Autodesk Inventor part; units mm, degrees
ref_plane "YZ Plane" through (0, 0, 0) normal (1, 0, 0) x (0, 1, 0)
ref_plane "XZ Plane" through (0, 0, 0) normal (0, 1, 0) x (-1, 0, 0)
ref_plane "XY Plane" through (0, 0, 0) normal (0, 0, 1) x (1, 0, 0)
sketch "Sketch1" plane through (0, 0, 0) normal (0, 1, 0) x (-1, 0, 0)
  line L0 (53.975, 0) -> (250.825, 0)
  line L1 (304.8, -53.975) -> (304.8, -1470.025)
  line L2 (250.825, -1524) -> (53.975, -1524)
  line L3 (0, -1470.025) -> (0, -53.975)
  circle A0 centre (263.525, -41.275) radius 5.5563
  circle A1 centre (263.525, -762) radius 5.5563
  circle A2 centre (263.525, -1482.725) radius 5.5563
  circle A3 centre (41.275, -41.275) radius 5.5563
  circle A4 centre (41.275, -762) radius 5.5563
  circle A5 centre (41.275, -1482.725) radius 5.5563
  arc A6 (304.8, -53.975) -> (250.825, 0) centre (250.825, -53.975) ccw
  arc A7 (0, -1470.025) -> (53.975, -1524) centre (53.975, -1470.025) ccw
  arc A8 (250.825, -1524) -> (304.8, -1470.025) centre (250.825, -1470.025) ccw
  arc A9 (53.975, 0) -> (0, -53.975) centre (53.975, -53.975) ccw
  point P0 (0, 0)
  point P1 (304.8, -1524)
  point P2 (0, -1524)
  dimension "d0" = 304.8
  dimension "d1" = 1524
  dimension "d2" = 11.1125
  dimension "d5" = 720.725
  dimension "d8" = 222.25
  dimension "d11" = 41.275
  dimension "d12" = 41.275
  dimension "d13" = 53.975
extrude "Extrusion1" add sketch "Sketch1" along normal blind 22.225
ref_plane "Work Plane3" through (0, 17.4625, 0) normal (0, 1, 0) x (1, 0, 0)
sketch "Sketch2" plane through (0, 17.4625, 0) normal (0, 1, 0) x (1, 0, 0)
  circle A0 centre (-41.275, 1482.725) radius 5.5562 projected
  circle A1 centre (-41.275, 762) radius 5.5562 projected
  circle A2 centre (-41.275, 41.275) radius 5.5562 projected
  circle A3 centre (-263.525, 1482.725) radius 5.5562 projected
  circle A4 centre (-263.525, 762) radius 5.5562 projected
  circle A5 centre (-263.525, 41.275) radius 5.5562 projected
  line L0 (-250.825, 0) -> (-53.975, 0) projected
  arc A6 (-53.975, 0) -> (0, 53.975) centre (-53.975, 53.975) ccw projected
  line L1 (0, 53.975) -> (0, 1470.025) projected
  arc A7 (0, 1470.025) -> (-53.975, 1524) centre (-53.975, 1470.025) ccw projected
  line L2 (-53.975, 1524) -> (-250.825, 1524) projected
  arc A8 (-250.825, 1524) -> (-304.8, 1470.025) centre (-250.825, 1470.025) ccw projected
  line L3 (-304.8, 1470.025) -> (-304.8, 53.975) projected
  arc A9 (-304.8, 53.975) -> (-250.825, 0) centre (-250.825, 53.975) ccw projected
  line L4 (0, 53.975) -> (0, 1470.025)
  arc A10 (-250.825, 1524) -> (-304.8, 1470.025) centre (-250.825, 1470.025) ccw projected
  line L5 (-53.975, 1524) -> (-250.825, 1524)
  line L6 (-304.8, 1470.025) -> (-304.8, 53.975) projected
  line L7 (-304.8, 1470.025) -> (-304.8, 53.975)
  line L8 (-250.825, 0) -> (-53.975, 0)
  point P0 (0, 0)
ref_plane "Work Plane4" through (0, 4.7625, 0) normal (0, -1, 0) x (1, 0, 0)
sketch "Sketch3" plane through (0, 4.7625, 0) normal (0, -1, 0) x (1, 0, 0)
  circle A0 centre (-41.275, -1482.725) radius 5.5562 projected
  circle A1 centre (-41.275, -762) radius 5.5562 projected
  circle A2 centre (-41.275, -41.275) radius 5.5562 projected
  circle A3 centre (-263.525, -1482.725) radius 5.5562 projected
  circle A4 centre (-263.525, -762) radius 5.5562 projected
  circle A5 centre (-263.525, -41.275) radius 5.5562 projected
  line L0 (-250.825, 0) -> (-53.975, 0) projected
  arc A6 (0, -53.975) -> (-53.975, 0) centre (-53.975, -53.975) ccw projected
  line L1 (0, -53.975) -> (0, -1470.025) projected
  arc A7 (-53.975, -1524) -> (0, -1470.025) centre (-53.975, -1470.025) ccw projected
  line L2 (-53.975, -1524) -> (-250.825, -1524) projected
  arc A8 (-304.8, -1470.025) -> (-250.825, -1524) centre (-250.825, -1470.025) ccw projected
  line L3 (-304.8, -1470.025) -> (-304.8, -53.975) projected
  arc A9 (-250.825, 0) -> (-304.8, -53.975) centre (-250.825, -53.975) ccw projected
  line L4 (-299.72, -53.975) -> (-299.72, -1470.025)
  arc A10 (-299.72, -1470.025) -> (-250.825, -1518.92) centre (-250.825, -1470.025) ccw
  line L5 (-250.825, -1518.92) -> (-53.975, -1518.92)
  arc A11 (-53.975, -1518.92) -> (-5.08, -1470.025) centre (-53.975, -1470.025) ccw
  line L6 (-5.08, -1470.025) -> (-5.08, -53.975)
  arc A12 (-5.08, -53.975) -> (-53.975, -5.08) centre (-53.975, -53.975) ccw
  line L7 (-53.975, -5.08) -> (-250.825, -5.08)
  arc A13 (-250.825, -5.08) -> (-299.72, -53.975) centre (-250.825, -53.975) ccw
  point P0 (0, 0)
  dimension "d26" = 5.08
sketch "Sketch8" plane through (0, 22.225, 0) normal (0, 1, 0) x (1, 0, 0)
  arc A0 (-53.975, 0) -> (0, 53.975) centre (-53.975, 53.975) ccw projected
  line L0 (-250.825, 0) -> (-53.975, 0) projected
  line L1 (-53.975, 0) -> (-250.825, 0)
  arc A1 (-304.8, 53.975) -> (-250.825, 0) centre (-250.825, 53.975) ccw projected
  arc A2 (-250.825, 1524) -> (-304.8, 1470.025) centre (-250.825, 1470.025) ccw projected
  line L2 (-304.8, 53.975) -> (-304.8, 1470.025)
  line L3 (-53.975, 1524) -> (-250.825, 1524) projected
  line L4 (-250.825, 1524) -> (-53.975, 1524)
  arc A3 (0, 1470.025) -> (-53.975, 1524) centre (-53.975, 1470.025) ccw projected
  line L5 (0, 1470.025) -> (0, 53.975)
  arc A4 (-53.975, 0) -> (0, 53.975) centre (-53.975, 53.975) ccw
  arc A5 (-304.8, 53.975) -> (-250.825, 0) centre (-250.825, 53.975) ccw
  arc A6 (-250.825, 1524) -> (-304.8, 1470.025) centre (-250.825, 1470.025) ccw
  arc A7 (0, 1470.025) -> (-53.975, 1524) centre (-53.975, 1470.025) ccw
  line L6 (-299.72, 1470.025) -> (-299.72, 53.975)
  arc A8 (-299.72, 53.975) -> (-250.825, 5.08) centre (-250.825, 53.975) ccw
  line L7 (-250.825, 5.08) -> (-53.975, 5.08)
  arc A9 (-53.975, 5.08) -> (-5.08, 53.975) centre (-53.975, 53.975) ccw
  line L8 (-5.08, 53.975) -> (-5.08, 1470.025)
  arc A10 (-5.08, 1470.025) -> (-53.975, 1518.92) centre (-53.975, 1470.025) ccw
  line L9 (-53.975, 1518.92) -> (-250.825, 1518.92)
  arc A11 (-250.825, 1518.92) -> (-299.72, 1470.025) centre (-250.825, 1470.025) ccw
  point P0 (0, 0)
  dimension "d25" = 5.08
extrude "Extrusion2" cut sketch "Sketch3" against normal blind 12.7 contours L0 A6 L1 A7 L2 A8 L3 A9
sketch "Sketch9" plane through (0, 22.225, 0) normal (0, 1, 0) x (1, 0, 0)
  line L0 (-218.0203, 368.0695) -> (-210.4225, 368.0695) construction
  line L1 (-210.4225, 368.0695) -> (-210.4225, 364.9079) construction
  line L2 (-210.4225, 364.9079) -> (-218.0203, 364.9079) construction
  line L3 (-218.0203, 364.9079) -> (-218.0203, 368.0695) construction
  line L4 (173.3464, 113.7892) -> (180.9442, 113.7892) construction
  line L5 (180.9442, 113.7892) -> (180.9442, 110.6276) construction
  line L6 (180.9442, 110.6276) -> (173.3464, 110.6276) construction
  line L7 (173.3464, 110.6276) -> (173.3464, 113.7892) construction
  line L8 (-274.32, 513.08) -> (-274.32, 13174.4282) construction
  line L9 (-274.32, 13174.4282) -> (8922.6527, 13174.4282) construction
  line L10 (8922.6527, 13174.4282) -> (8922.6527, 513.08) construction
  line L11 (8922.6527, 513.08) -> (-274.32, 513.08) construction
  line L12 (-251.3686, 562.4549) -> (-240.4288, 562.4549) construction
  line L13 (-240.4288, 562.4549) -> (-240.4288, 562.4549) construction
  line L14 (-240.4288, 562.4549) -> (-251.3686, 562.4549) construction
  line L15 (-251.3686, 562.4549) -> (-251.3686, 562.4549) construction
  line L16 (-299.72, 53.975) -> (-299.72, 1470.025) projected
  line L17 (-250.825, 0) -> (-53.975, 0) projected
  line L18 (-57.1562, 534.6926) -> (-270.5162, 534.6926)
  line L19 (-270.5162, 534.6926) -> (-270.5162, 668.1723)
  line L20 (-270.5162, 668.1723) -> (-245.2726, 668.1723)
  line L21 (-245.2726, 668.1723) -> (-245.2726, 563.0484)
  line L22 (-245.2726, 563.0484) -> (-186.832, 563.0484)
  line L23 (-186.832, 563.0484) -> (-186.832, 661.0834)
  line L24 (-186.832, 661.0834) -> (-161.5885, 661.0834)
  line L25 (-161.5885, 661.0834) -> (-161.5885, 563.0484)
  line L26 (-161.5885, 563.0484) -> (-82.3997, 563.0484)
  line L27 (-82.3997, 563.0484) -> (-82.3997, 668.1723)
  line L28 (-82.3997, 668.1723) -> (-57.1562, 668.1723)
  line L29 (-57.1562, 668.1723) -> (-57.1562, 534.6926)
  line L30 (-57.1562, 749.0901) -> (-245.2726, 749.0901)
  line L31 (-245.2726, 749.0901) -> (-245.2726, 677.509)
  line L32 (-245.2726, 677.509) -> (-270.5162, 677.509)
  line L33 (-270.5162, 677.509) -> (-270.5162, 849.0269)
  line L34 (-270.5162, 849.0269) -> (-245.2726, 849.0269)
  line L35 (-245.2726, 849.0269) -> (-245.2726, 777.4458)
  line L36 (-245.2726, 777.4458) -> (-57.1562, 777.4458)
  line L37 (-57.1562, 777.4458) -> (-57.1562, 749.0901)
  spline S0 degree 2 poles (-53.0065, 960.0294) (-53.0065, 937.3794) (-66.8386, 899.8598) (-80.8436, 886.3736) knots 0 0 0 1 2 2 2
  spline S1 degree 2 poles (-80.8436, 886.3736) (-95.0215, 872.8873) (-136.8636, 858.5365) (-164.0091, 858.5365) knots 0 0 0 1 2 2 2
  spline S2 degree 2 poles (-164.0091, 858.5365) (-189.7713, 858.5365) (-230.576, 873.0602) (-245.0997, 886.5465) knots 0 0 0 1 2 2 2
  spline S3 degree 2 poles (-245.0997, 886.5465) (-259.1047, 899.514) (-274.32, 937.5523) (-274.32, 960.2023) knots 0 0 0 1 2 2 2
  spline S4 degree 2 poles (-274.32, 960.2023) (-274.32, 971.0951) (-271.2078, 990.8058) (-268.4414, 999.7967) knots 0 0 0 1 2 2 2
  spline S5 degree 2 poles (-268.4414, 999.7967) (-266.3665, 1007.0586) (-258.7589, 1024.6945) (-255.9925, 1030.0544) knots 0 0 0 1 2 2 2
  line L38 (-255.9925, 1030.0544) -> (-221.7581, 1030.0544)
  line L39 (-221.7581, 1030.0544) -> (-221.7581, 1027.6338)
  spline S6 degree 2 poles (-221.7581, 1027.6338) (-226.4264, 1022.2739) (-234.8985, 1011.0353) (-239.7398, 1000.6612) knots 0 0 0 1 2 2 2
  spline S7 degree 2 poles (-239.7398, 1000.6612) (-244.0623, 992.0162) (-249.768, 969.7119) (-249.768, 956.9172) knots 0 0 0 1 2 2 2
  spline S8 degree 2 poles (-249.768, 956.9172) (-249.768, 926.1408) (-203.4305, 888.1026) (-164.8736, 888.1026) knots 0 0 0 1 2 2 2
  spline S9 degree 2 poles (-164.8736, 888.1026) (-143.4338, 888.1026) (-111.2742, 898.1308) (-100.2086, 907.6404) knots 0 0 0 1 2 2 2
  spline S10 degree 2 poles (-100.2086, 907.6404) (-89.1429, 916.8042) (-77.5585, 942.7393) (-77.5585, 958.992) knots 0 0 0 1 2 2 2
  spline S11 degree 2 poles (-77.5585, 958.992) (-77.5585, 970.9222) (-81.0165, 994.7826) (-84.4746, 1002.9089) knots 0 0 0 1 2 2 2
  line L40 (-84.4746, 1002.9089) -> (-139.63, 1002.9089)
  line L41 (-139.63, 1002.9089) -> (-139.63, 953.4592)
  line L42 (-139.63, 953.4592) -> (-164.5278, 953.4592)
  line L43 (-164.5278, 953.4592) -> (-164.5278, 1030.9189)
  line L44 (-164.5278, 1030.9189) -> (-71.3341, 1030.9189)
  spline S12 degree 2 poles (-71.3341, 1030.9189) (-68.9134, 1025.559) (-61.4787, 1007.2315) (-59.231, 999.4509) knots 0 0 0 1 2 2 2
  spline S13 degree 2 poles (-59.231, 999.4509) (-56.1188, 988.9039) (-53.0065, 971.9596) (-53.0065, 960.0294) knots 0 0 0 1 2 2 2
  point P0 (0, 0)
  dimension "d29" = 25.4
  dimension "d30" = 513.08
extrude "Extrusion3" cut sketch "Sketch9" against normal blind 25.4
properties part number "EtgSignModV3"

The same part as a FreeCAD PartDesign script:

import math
import FreeCAD as App
import Part
import Sketcher

V = App.Vector
Q = App.Units.Quantity

doc = App.newDocument("Part")
params = doc.addObject("Spreadsheet::Sheet", "Params")
for row, (alias, value) in enumerate([
    ("sketch1_diameter", "0.4375 in"),
    ("sketch1_radius", "2.125 in"),
    ("pad1_length", "0.875 in"),
    ("sketch2_radius", "2.125 in"),
    ("pocket1_length", "0.5 in"),
    ("sketch3_width", "8.4 in"),
    ("pocket2_length", "1 in"),
], start=1):
    params.set(f"A{row}", alias)
    params.set(f"B{row}", "=" + value)
    params.setAlias(f"B{row}", alias)

body = doc.addObject("PartDesign::Body", "Body")

# Sketch on XZ plane
sketch1 = body.newObject("Sketcher::SketchObject", "Sketch")
sketch1.AttachmentSupport = (doc.getObject("XZ_Plane"), [""])
sketch1.MapMode = "FlatFace"
sketch1.addGeometry(Part.LineSegment(V(-251, 0, 0), V(-54, 0, 0)), False)
sketch1.addGeometry(Part.ArcOfCircle(Part.Circle(V(-54, -54, 0), V(0, 0, 1), 54), math.radians(0), math.radians(90)), False)
sketch1.addGeometry(Part.LineSegment(V(0, -54, 0), V(0, -1470, 0)), False)
sketch1.addGeometry(Part.ArcOfCircle(Part.Circle(V(-54, -1470, 0), V(0, 0, 1), 54), math.radians(-90), math.radians(0)), False)
sketch1.addGeometry(Part.LineSegment(V(-54, -1524, 0), V(-251, -1524, 0)), False)
sketch1.addGeometry(Part.ArcOfCircle(Part.Circle(V(-251, -1470, 0), V(0, 0, 1), 54), math.radians(180), math.radians(270)), False)
sketch1.addGeometry(Part.LineSegment(V(-305, -1470, 0), V(-305, -54, 0)), False)
sketch1.addGeometry(Part.ArcOfCircle(Part.Circle(V(-251, -54, 0), V(0, 0, 1), 54), math.radians(90), math.radians(180)), False)
sketch1.addGeometry(Part.Circle(V(-41, -1483, 0), V(0, 0, 1), 6), False)
sketch1.addGeometry(Part.Circle(V(-264, -1483, 0), V(0, 0, 1), 6), False)
sketch1.addGeometry(Part.Circle(V(-41, -762, 0), V(0, 0, 1), 6), False)
sketch1.addGeometry(Part.Circle(V(-41, -41, 0), V(0, 0, 1), 6), False)
sketch1.addGeometry(Part.Circle(V(-264, -762, 0), V(0, 0, 1), 6), False)
sketch1.addGeometry(Part.Circle(V(-264, -41, 0), V(0, 0, 1), 6), False)
sketch1.addConstraint(Sketcher.Constraint("Tangent", 0, 2, 1, 2))
sketch1.addConstraint(Sketcher.Constraint("Tangent", 1, 1, 2, 1))
sketch1.addConstraint(Sketcher.Constraint("Tangent", 2, 2, 3, 2))
sketch1.addConstraint(Sketcher.Constraint("Tangent", 3, 1, 4, 1))
sketch1.addConstraint(Sketcher.Constraint("Tangent", 4, 2, 5, 2))
sketch1.addConstraint(Sketcher.Constraint("Tangent", 5, 1, 6, 1))
sketch1.addConstraint(Sketcher.Constraint("Tangent", 6, 2, 7, 2))
sketch1.addConstraint(Sketcher.Constraint("Tangent", 7, 1, 0, 1))
sketch1.addConstraint(Sketcher.Constraint("Horizontal", 0))
sketch1.addConstraint(Sketcher.Constraint("Vertical", 2))
sketch1.addConstraint(Sketcher.Constraint("Horizontal", 4))
sketch1.addConstraint(Sketcher.Constraint("Vertical", 6))
sketch1.addConstraint(Sketcher.Constraint("Equal", 1, 3))
sketch1.addConstraint(Sketcher.Constraint("Equal", 3, 5))
sketch1.addConstraint(Sketcher.Constraint("Equal", 5, 7))
sketch1.addConstraint(Sketcher.Constraint("Equal", 8, 9))
sketch1.addConstraint(Sketcher.Constraint("Equal", 9, 10))
sketch1.addConstraint(Sketcher.Constraint("Equal", 10, 11))
sketch1.addConstraint(Sketcher.Constraint("Equal", 11, 12))
sketch1.addConstraint(Sketcher.Constraint("Equal", 12, 13))
sketch1.addConstraint(Sketcher.Constraint("PointOnObject", 0, 2, -1))
sketch1.addConstraint(Sketcher.Constraint("PointOnObject", 1, 1, -2))
sketch1.addConstraint(Sketcher.Constraint("Horizontal", 8, 3, 9, 3))
sketch1.addConstraint(Sketcher.Constraint("Horizontal", 10, 3, 12, 3))
sketch1.addConstraint(Sketcher.Constraint("Horizontal", 11, 3, 13, 3))
sketch1.addConstraint(Sketcher.Constraint("Vertical", 8, 3, 10, 3))
sketch1.addConstraint(Sketcher.Constraint("Vertical", 10, 3, 11, 3))
sketch1.addConstraint(Sketcher.Constraint("Vertical", 9, 3, 12, 3))
sketch1.addConstraint(Sketcher.Constraint("Vertical", 12, 3, 13, 3))
sketch1.addConstraint(Sketcher.Constraint("Diameter", 8, Q("0.4375 in")))
sketch1.addConstraint(Sketcher.Constraint("DistanceY", 3, 1, -1, 1, Q("60 in")))
sketch1.addConstraint(Sketcher.Constraint("DistanceX", 5, 1, -1, 1, Q("12 in")))
sketch1.addConstraint(Sketcher.Constraint("Radius", 1, Q("2.125 in")))
sketch1.addConstraint(Sketcher.Constraint("DistanceX", 9, 3, 8, 3, Q("8.75 in")))
sketch1.addConstraint(Sketcher.Constraint("DistanceX", 8, 3, -1, 1, Q("1.625 in")))
sketch1.addConstraint(Sketcher.Constraint("DistanceY", 10, 3, -1, 1, Q("30 in")))
sketch1.addConstraint(Sketcher.Constraint("DistanceY", 11, 3, -1, 1, Q("1.625 in")))
sketch1.addConstraint(Sketcher.Constraint("DistanceY", 8, 3, 10, 3, Q("28.375 in")))
sketch1.setExpression("Constraints[29]", "Params.sketch1_diameter")
sketch1.setExpression("Constraints[32]", "Params.sketch1_radius")
pad1 = body.newObject("PartDesign::Pad", "Pad")
pad1.Profile = sketch1
pad1.setExpression("Length", "Params.pad1_length")
pad1.Reversed = True

# Sketch on XZ plane
sketch2 = body.newObject("Sketcher::SketchObject", "Sketch001")
sketch2.AttachmentSupport = (doc.getObject("XZ_Plane"), [""])
sketch2.MapMode = "FlatFace"
sketch2.AttachmentOffset = App.Placement(V(0, 0, -0.1875 * 25.4), App.Rotation())
sketch2.addGeometry(Part.LineSegment(V(-54, 0, 0), V(-251, 0, 0)), False)
sketch2.addGeometry(Part.ArcOfCircle(Part.Circle(V(-251, -54, 0), V(0, 0, 1), 54), math.radians(90), math.radians(180)), False)
sketch2.addGeometry(Part.LineSegment(V(-305, -54, 0), V(-305, -1470, 0)), False)
sketch2.addGeometry(Part.ArcOfCircle(Part.Circle(V(-251, -1470, 0), V(0, 0, 1), 54), math.radians(180), math.radians(270)), False)
sketch2.addGeometry(Part.LineSegment(V(-251, -1524, 0), V(-54, -1524, 0)), False)
sketch2.addGeometry(Part.ArcOfCircle(Part.Circle(V(-54, -1470, 0), V(0, 0, 1), 54), math.radians(-90), math.radians(0)), False)
sketch2.addGeometry(Part.LineSegment(V(0, -1470, 0), V(0, -54, 0)), False)
sketch2.addGeometry(Part.ArcOfCircle(Part.Circle(V(-54, -54, 0), V(0, 0, 1), 54), math.radians(0), math.radians(90)), False)
sketch2.addGeometry(Part.LineSegment(V(-300, -1470, 0), V(-300, -54, 0)), False)
sketch2.addGeometry(Part.ArcOfCircle(Part.Circle(V(-251, -54, 0), V(0, 0, 1), 49), math.radians(90), math.radians(180)), False)
sketch2.addGeometry(Part.LineSegment(V(-251, -5, 0), V(-54, -5, 0)), False)
sketch2.addGeometry(Part.ArcOfCircle(Part.Circle(V(-54, -54, 0), V(0, 0, 1), 49), math.radians(0), math.radians(90)), False)
sketch2.addGeometry(Part.LineSegment(V(-5, -54, 0), V(-5, -1470, 0)), False)
sketch2.addGeometry(Part.ArcOfCircle(Part.Circle(V(-54, -1470, 0), V(0, 0, 1), 49), math.radians(-90), math.radians(0)), False)
sketch2.addGeometry(Part.LineSegment(V(-54, -1519, 0), V(-251, -1519, 0)), False)
sketch2.addGeometry(Part.ArcOfCircle(Part.Circle(V(-251, -1470, 0), V(0, 0, 1), 49), math.radians(180), math.radians(270)), False)
sketch2.addConstraint(Sketcher.Constraint("Tangent", 0, 2, 1, 1))
sketch2.addConstraint(Sketcher.Constraint("Tangent", 1, 2, 2, 1))
sketch2.addConstraint(Sketcher.Constraint("Tangent", 2, 2, 3, 1))
sketch2.addConstraint(Sketcher.Constraint("Tangent", 3, 2, 4, 1))
sketch2.addConstraint(Sketcher.Constraint("Tangent", 4, 2, 5, 1))
sketch2.addConstraint(Sketcher.Constraint("Tangent", 5, 2, 6, 1))
sketch2.addConstraint(Sketcher.Constraint("Tangent", 6, 2, 7, 1))
sketch2.addConstraint(Sketcher.Constraint("Tangent", 7, 2, 0, 1))
sketch2.addConstraint(Sketcher.Constraint("Tangent", 8, 2, 9, 2))
sketch2.addConstraint(Sketcher.Constraint("Tangent", 9, 1, 10, 1))
sketch2.addConstraint(Sketcher.Constraint("Tangent", 10, 2, 11, 2))
sketch2.addConstraint(Sketcher.Constraint("Tangent", 11, 1, 12, 1))
sketch2.addConstraint(Sketcher.Constraint("Tangent", 12, 2, 13, 2))
sketch2.addConstraint(Sketcher.Constraint("Tangent", 13, 1, 14, 1))
sketch2.addConstraint(Sketcher.Constraint("Tangent", 14, 2, 15, 2))
sketch2.addConstraint(Sketcher.Constraint("Tangent", 15, 1, 8, 1))
sketch2.addConstraint(Sketcher.Constraint("Horizontal", 0))
sketch2.addConstraint(Sketcher.Constraint("Vertical", 2))
sketch2.addConstraint(Sketcher.Constraint("Horizontal", 4))
sketch2.addConstraint(Sketcher.Constraint("Vertical", 6))
sketch2.addConstraint(Sketcher.Constraint("Vertical", 8))
sketch2.addConstraint(Sketcher.Constraint("Horizontal", 10))
sketch2.addConstraint(Sketcher.Constraint("Vertical", 12))
sketch2.addConstraint(Sketcher.Constraint("Horizontal", 14))
sketch2.addConstraint(Sketcher.Constraint("Coincident", 9, 3, 1, 3))
sketch2.addConstraint(Sketcher.Constraint("Coincident", 11, 3, 7, 3))
sketch2.addConstraint(Sketcher.Constraint("Coincident", 13, 3, 5, 3))
sketch2.addConstraint(Sketcher.Constraint("Equal", 1, 3))
sketch2.addConstraint(Sketcher.Constraint("Equal", 3, 5))
sketch2.addConstraint(Sketcher.Constraint("Equal", 5, 7))
sketch2.addConstraint(Sketcher.Constraint("Equal", 13, 15))
sketch2.addConstraint(Sketcher.Constraint("PointOnObject", 0, 2, -1))
sketch2.addConstraint(Sketcher.Constraint("PointOnObject", 5, 2, -2))
sketch2.addConstraint(Sketcher.Constraint("DistanceY", 9, 1, -1, 1, Q("0.2 in")))
sketch2.addConstraint(Sketcher.Constraint("DistanceX", 1, 2, -1, 1, Q("12 in")))
sketch2.addConstraint(Sketcher.Constraint("DistanceY", 3, 2, -1, 1, Q("60 in")))
sketch2.addConstraint(Sketcher.Constraint("Radius", 1, Q("2.125 in")))
sketch2.setExpression("Constraints[36]", "Params.sketch2_radius")
pocket1 = body.newObject("PartDesign::Pocket", "Pocket")
pocket1.Profile = sketch2
pocket1.setExpression("Length", "Params.pocket1_length")

# Sketch on XZ plane
sketch3 = body.newObject("Sketcher::SketchObject", "Sketch002")
sketch3.AttachmentSupport = (doc.getObject("XZ_Plane"), [""])
sketch3.MapMode = "FlatFace"
sketch3.AttachmentOffset = App.Placement(V(0, 0, -0.875 * 25.4), App.Rotation())
sketch3.addGeometry(Part.LineSegment(V(-270.5162, -534.6926, 0), V(-57.1562, -534.6926, 0)), False)
sketch3.addGeometry(Part.LineSegment(V(-57.1562, -534.6926, 0), V(-57.1562, -668.1723, 0)), False)
sketch3.addGeometry(Part.LineSegment(V(-57.1562, -668.1723, 0), V(-82.3997, -668.1723, 0)), False)
sketch3.addGeometry(Part.LineSegment(V(-82.3997, -668.1723, 0), V(-82.3997, -563.0484, 0)), False)
sketch3.addGeometry(Part.LineSegment(V(-82.3997, -563.0484, 0), V(-161.5885, -563.0484, 0)), False)
sketch3.addGeometry(Part.LineSegment(V(-161.5885, -563.0484, 0), V(-161.5885, -661.0834, 0)), False)
sketch3.addGeometry(Part.LineSegment(V(-161.5885, -661.0834, 0), V(-186.832, -661.0834, 0)), False)
sketch3.addGeometry(Part.LineSegment(V(-186.832, -661.0834, 0), V(-186.832, -563.0484, 0)), False)
sketch3.addGeometry(Part.LineSegment(V(-186.832, -563.0484, 0), V(-245.2726, -563.0484, 0)), False)
sketch3.addGeometry(Part.LineSegment(V(-245.2726, -563.0484, 0), V(-245.2726, -668.1723, 0)), False)
sketch3.addGeometry(Part.LineSegment(V(-245.2726, -668.1723, 0), V(-270.5162, -668.1723, 0)), False)
sketch3.addGeometry(Part.LineSegment(V(-270.5162, -668.1723, 0), V(-270.5162, -534.6926, 0)), False)
sketch3.addGeometry(Part.LineSegment(V(-245.2726, -749.0901, 0), V(-57.1562, -749.0901, 0)), False)
sketch3.addGeometry(Part.LineSegment(V(-57.1562, -749.0901, 0), V(-57.1562, -777.4458, 0)), False)
sketch3.addGeometry(Part.LineSegment(V(-57.1562, -777.4458, 0), V(-245.2726, -777.4458, 0)), False)
sketch3.addGeometry(Part.LineSegment(V(-245.2726, -777.4458, 0), V(-245.2726, -849.0269, 0)), False)
sketch3.addGeometry(Part.LineSegment(V(-245.2726, -849.0269, 0), V(-270.5162, -849.0269, 0)), False)
sketch3.addGeometry(Part.LineSegment(V(-270.5162, -849.0269, 0), V(-270.5162, -677.509, 0)), False)
sketch3.addGeometry(Part.LineSegment(V(-270.5162, -677.509, 0), V(-245.2726, -677.509, 0)), False)
sketch3.addGeometry(Part.LineSegment(V(-245.2726, -677.509, 0), V(-245.2726, -749.0901, 0)), False)
sketch3.addGeometry(Part.BSplineCurve([V(-53.0065, -960.0294, 0), V(-53.0065, -937.3794, 0), V(-66.8386, -899.8598, 0), V(-80.8436, -886.3736, 0)], [3, 1, 3], [0, 1, 2], False, 2, [1, 1, 1, 1], False), False)
sketch3.addGeometry(Part.BSplineCurve([V(-59.231, -999.4509, 0), V(-56.1188, -988.9039, 0), V(-53.0065, -971.9596, 0), V(-53.0065, -960.0294, 0)], [3, 1, 3], [0, 1, 2], False, 2, [1, 1, 1, 1], False), False)
sketch3.addGeometry(Part.BSplineCurve([V(-71.3341, -1030.9189, 0), V(-68.9134, -1025.559, 0), V(-61.4787, -1007.2315, 0), V(-59.231, -999.4509, 0)], [3, 1, 3], [0, 1, 2], False, 2, [1, 1, 1, 1], False), False)
sketch3.addGeometry(Part.LineSegment(V(-71.3341, -1030.9189, 0), V(-164.5278, -1030.9189, 0)), False)
sketch3.addGeometry(Part.LineSegment(V(-164.5278, -1030.9189, 0), V(-164.5278, -953.4592, 0)), False)
sketch3.addGeometry(Part.LineSegment(V(-164.5278, -953.4592, 0), V(-139.63, -953.4592, 0)), False)
sketch3.addGeometry(Part.LineSegment(V(-139.63, -953.4592, 0), V(-139.63, -1002.9089, 0)), False)
sketch3.addGeometry(Part.LineSegment(V(-139.63, -1002.9089, 0), V(-84.4746, -1002.9089, 0)), False)
sketch3.addGeometry(Part.BSplineCurve([V(-77.5585, -958.992, 0), V(-77.5585, -970.9222, 0), V(-81.0165, -994.7826, 0), V(-84.4746, -1002.9089, 0)], [3, 1, 3], [0, 1, 2], False, 2, [1, 1, 1, 1], False), False)
sketch3.addGeometry(Part.BSplineCurve([V(-100.2086, -907.6404, 0), V(-89.1429, -916.8042, 0), V(-77.5585, -942.7393, 0), V(-77.5585, -958.992, 0)], [3, 1, 3], [0, 1, 2], False, 2, [1, 1, 1, 1], False), False)
sketch3.addGeometry(Part.BSplineCurve([V(-164.8736, -888.1026, 0), V(-143.4338, -888.1026, 0), V(-111.2742, -898.1308, 0), V(-100.2086, -907.6404, 0)], [3, 1, 3], [0, 1, 2], False, 2, [1, 1, 1, 1], False), False)
sketch3.addGeometry(Part.BSplineCurve([V(-249.768, -956.9172, 0), V(-249.768, -926.1408, 0), V(-203.4305, -888.1026, 0), V(-164.8736, -888.1026, 0)], [3, 1, 3], [0, 1, 2], False, 2, [1, 1, 1, 1], False), False)
sketch3.addGeometry(Part.BSplineCurve([V(-239.7398, -1000.6612, 0), V(-244.0623, -992.0162, 0), V(-249.768, -969.7119, 0), V(-249.768, -956.9172, 0)], [3, 1, 3], [0, 1, 2], False, 2, [1, 1, 1, 1], False), False)
sketch3.addGeometry(Part.BSplineCurve([V(-221.7581, -1027.6338, 0), V(-226.4264, -1022.2739, 0), V(-234.8985, -1011.0353, 0), V(-239.7398, -1000.6612, 0)], [3, 1, 3], [0, 1, 2], False, 2, [1, 1, 1, 1], False), False)
sketch3.addGeometry(Part.LineSegment(V(-221.7581, -1027.6338, 0), V(-221.7581, -1030.0544, 0)), False)
sketch3.addGeometry(Part.LineSegment(V(-221.7581, -1030.0544, 0), V(-255.9925, -1030.0544, 0)), False)
sketch3.addGeometry(Part.BSplineCurve([V(-268.4414, -999.7967, 0), V(-266.3665, -1007.0586, 0), V(-258.7589, -1024.6945, 0), V(-255.9925, -1030.0544, 0)], [3, 1, 3], [0, 1, 2], False, 2, [1, 1, 1, 1], False), False)
sketch3.addGeometry(Part.BSplineCurve([V(-274.32, -960.2023, 0), V(-274.32, -971.0951, 0), V(-271.2078, -990.8058, 0), V(-268.4414, -999.7967, 0)], [3, 1, 3], [0, 1, 2], False, 2, [1, 1, 1, 1], False), False)
sketch3.addGeometry(Part.BSplineCurve([V(-245.0997, -886.5465, 0), V(-259.1047, -899.514, 0), V(-274.32, -937.5523, 0), V(-274.32, -960.2023, 0)], [3, 1, 3], [0, 1, 2], False, 2, [1, 1, 1, 1], False), False)
sketch3.addGeometry(Part.BSplineCurve([V(-164.0091, -858.5365, 0), V(-189.7713, -858.5365, 0), V(-230.576, -873.0602, 0), V(-245.0997, -886.5465, 0)], [3, 1, 3], [0, 1, 2], False, 2, [1, 1, 1, 1], False), False)
sketch3.addGeometry(Part.BSplineCurve([V(-80.8436, -886.3736, 0), V(-95.0215, -872.8873, 0), V(-136.8636, -858.5365, 0), V(-164.0091, -858.5365, 0)], [3, 1, 3], [0, 1, 2], False, 2, [1, 1, 1, 1], False), False)
sketch3.addConstraint(Sketcher.Constraint("Block", 20))
sketch3.addConstraint(Sketcher.Constraint("Block", 21))
sketch3.addConstraint(Sketcher.Constraint("Block", 22))
sketch3.addConstraint(Sketcher.Constraint("Block", 28))
sketch3.addConstraint(Sketcher.Constraint("Block", 29))
sketch3.addConstraint(Sketcher.Constraint("Block", 30))
sketch3.addConstraint(Sketcher.Constraint("Block", 31))
sketch3.addConstraint(Sketcher.Constraint("Block", 32))
sketch3.addConstraint(Sketcher.Constraint("Block", 33))
sketch3.addConstraint(Sketcher.Constraint("Block", 36))
sketch3.addConstraint(Sketcher.Constraint("Block", 37))
sketch3.addConstraint(Sketcher.Constraint("Block", 38))
sketch3.addConstraint(Sketcher.Constraint("Block", 39))
sketch3.addConstraint(Sketcher.Constraint("Block", 40))
sketch3.addConstraint(Sketcher.Constraint("Coincident", 0, 2, 1, 1))
sketch3.addConstraint(Sketcher.Constraint("Coincident", 1, 2, 2, 1))
sketch3.addConstraint(Sketcher.Constraint("Coincident", 2, 2, 3, 1))
sketch3.addConstraint(Sketcher.Constraint("Coincident", 3, 2, 4, 1))
sketch3.addConstraint(Sketcher.Constraint("Coincident", 4, 2, 5, 1))
sketch3.addConstraint(Sketcher.Constraint("Coincident", 5, 2, 6, 1))
sketch3.addConstraint(Sketcher.Constraint("Coincident", 6, 2, 7, 1))
sketch3.addConstraint(Sketcher.Constraint("Coincident", 7, 2, 8, 1))
sketch3.addConstraint(Sketcher.Constraint("Coincident", 8, 2, 9, 1))
sketch3.addConstraint(Sketcher.Constraint("Coincident", 9, 2, 10, 1))
sketch3.addConstraint(Sketcher.Constraint("Coincident", 10, 2, 11, 1))
sketch3.addConstraint(Sketcher.Constraint("Coincident", 11, 2, 0, 1))
sketch3.addConstraint(Sketcher.Constraint("Coincident", 12, 2, 13, 1))
sketch3.addConstraint(Sketcher.Constraint("Coincident", 13, 2, 14, 1))
sketch3.addConstraint(Sketcher.Constraint("Coincident", 14, 2, 15, 1))
sketch3.addConstraint(Sketcher.Constraint("Coincident", 15, 2, 16, 1))
sketch3.addConstraint(Sketcher.Constraint("Coincident", 16, 2, 17, 1))
sketch3.addConstraint(Sketcher.Constraint("Coincident", 17, 2, 18, 1))
sketch3.addConstraint(Sketcher.Constraint("Coincident", 18, 2, 19, 1))
sketch3.addConstraint(Sketcher.Constraint("Coincident", 19, 2, 12, 1))
sketch3.addConstraint(Sketcher.Constraint("Coincident", 22, 1, 23, 1))
sketch3.addConstraint(Sketcher.Constraint("Coincident", 23, 2, 24, 1))
sketch3.addConstraint(Sketcher.Constraint("Coincident", 24, 2, 25, 1))
sketch3.addConstraint(Sketcher.Constraint("Coincident", 25, 2, 26, 1))
sketch3.addConstraint(Sketcher.Constraint("Coincident", 26, 2, 27, 1))
sketch3.addConstraint(Sketcher.Constraint("Coincident", 27, 2, 28, 2))
sketch3.addConstraint(Sketcher.Constraint("Coincident", 33, 1, 34, 1))
sketch3.addConstraint(Sketcher.Constraint("Coincident", 34, 2, 35, 1))
sketch3.addConstraint(Sketcher.Constraint("Coincident", 35, 2, 36, 2))
sketch3.addConstraint(Sketcher.Constraint("Horizontal", 0))
sketch3.addConstraint(Sketcher.Constraint("Vertical", 1))
sketch3.addConstraint(Sketcher.Constraint("Horizontal", 2))
sketch3.addConstraint(Sketcher.Constraint("Vertical", 3))
sketch3.addConstraint(Sketcher.Constraint("Horizontal", 4))
sketch3.addConstraint(Sketcher.Constraint("Vertical", 5))
sketch3.addConstraint(Sketcher.Constraint("Horizontal", 6))
sketch3.addConstraint(Sketcher.Constraint("Vertical", 7))
sketch3.addConstraint(Sketcher.Constraint("Horizontal", 8))
sketch3.addConstraint(Sketcher.Constraint("Vertical", 9))
sketch3.addConstraint(Sketcher.Constraint("Horizontal", 10))
sketch3.addConstraint(Sketcher.Constraint("Vertical", 11))
sketch3.addConstraint(Sketcher.Constraint("Horizontal", 12))
sketch3.addConstraint(Sketcher.Constraint("Vertical", 13))
sketch3.addConstraint(Sketcher.Constraint("Horizontal", 14))
sketch3.addConstraint(Sketcher.Constraint("Vertical", 15))
sketch3.addConstraint(Sketcher.Constraint("Horizontal", 16))
sketch3.addConstraint(Sketcher.Constraint("Vertical", 17))
sketch3.addConstraint(Sketcher.Constraint("Horizontal", 18))
sketch3.addConstraint(Sketcher.Constraint("Vertical", 19))
sketch3.addConstraint(Sketcher.Constraint("Horizontal", 23))
sketch3.addConstraint(Sketcher.Constraint("Vertical", 24))
sketch3.addConstraint(Sketcher.Constraint("Horizontal", 25))
sketch3.addConstraint(Sketcher.Constraint("Vertical", 26))
sketch3.addConstraint(Sketcher.Constraint("Horizontal", 27))
sketch3.addConstraint(Sketcher.Constraint("Vertical", 34))
sketch3.addConstraint(Sketcher.Constraint("Horizontal", 35))
sketch3.addConstraint(Sketcher.Constraint("Horizontal", 4, 2, 7, 2))
sketch3.addConstraint(Sketcher.Constraint("Horizontal", 2, 2, 9, 2))
sketch3.addConstraint(Sketcher.Constraint("Vertical", 1, 2, 12, 2))
sketch3.addConstraint(Sketcher.Constraint("Vertical", 9, 2, 14, 2))
sketch3.addConstraint(Sketcher.Constraint("Vertical", 11, 2, 16, 2))
sketch3.addConstraint(Sketcher.Constraint("Vertical", 15, 2, 18, 2))
sketch3.addConstraint(Sketcher.Constraint("Equal", 2, 6))
sketch3.addConstraint(Sketcher.Constraint("Equal", 6, 10))
sketch3.addConstraint(Sketcher.Constraint("Equal", 15, 19))
sketch3.addConstraint(Sketcher.Constraint("DistanceX", 0, 1, 0, 2, Q("8.4 in")))
sketch3.addConstraint(Sketcher.Constraint("DistanceX", 8, 2, 8, 1, Q("2.3008 in")))
sketch3.addConstraint(Sketcher.Constraint("DistanceY", 1, 2, 1, 1, Q("5.2551 in")))
sketch3.addConstraint(Sketcher.Constraint("DistanceY", 24, 1, 24, 2, Q("3.0496 in")))
sketch3.addConstraint(Sketcher.Constraint("DistanceY", 1, 2, -1, 1, Q("26.306 in")))
sketch3.addConstraint(Sketcher.Constraint("DistanceX", 16, 2, 25, 2, Q("5.153 in")))
sketch3.addConstraint(Sketcher.Constraint("DistanceX", 2, 2, 2, 1, 25.2435))
sketch3.addConstraint(Sketcher.Constraint("DistanceX", 23, 2, 23, 1, 93.1937))
sketch3.addConstraint(Sketcher.Constraint("DistanceX", 25, 1, 25, 2, 24.8978))
sketch3.addConstraint(Sketcher.Constraint("DistanceY", 3, 1, 3, 2, 105.124))
sketch3.addConstraint(Sketcher.Constraint("DistanceY", 5, 2, 5, 1, 98.035))
sketch3.addConstraint(Sketcher.Constraint("DistanceY", 13, 2, 13, 1, 28.3557))
sketch3.addConstraint(Sketcher.Constraint("DistanceY", 15, 2, 15, 1, 71.581))
sketch3.addConstraint(Sketcher.Constraint("DistanceY", 13, 2, -1, 1, Q("30.6081 in")))
sketch3.setExpression("Constraints[79]", "Params.sketch3_width")
pocket2 = body.newObject("PartDesign::Pocket", "Pocket001")
pocket2.Profile = sketch3
pocket2.setExpression("Length", "Params.pocket2_length")
pocket2.Reversed = True

doc.recompute()
